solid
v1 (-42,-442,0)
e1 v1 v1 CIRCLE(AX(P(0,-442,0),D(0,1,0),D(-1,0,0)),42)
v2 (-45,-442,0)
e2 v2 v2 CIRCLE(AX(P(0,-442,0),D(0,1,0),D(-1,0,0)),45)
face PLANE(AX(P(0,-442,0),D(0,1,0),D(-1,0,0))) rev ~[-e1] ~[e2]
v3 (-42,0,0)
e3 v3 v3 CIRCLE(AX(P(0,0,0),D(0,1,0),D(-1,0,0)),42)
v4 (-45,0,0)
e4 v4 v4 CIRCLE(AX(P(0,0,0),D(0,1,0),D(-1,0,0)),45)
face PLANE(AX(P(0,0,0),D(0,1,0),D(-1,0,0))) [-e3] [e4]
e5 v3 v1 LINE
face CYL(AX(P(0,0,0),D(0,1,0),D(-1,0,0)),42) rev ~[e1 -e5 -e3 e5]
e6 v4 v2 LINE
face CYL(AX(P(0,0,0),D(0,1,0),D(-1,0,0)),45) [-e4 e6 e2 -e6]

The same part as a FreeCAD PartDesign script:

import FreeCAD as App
import Part
import Sketcher

doc = App.newDocument("Part")
body = doc.addObject("PartDesign::Body", "Body")

# Sketch on XZ plane
sketch1 = doc.addObject("Sketcher::SketchObject", "Sketch")
body.addObject(sketch1)
sketch1.AttachmentSupport = (doc.XZ_Plane, [""])
sketch1.MapMode = "FlatFace"
sketch1.addGeometry([
    Part.Circle(App.Vector(0, 0, 0), App.Vector(0, 0, 1), 45),
    Part.Circle(App.Vector(0, 0, 0), App.Vector(0, 0, 1), 42),
], False)
sketch1.addConstraint([
    Sketcher.Constraint("Coincident", 0, 3, -1, 1),
    Sketcher.Constraint("Coincident", 1, 3, -1, 1),
    Sketcher.Constraint("Diameter", 0, 90.0),
    Sketcher.Constraint("Diameter", 1, 84.0),
])
pad1 = doc.addObject("PartDesign::Pad", "Pad")
body.addObject(pad1)
pad1.Profile = sketch1
pad1.Length = 442

doc.recompute()
